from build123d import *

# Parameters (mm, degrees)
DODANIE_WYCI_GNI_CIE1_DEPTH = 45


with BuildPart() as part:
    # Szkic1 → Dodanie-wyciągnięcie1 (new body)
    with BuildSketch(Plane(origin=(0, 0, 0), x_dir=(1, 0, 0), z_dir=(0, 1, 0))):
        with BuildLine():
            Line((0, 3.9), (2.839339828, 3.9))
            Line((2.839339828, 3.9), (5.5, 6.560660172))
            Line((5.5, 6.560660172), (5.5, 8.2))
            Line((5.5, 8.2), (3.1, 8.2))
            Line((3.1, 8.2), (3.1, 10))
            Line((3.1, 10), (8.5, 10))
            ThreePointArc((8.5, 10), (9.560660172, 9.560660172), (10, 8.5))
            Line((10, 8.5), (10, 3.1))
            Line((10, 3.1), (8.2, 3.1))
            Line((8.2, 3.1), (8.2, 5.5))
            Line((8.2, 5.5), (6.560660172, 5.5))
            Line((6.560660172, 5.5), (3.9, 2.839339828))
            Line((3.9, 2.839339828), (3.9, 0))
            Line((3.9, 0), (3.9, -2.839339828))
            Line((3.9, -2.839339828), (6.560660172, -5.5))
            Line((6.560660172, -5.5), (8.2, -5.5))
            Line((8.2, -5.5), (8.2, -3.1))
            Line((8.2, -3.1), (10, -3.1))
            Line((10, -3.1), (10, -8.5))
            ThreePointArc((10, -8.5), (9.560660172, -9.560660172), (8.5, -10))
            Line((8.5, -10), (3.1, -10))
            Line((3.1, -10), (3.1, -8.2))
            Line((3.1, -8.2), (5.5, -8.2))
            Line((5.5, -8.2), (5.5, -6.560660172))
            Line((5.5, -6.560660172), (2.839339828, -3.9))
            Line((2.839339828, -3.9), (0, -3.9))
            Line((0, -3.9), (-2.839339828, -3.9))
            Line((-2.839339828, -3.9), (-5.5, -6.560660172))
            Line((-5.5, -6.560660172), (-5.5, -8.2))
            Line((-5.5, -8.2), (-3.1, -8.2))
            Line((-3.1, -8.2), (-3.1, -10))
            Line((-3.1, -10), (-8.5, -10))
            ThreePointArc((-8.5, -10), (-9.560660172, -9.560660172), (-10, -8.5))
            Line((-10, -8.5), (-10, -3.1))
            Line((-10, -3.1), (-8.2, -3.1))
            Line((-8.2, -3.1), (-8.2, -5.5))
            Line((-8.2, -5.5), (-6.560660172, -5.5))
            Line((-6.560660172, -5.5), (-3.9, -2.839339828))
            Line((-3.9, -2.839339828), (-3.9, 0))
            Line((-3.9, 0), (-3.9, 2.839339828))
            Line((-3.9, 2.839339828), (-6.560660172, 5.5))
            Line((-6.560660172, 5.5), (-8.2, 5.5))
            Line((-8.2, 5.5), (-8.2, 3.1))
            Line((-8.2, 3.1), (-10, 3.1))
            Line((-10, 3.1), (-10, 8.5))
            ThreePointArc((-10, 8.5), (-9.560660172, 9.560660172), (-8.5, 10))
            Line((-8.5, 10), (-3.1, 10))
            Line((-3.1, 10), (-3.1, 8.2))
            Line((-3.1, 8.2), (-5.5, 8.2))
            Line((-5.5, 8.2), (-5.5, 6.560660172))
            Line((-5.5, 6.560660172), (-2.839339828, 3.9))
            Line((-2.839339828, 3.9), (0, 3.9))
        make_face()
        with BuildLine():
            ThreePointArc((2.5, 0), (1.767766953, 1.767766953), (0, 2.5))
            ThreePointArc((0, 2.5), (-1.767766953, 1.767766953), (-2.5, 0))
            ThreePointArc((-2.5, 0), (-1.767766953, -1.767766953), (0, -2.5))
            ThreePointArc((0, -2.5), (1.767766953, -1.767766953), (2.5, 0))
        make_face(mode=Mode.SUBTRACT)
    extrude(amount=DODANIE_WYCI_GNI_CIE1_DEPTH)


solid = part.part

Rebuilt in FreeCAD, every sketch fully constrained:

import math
import FreeCAD as App
import Part
import Sketcher
from FreeCAD import Vector
Q = App.Units.Quantity

doc = App.newDocument("Part")
body = doc.addObject("PartDesign::Body", "Body")

sketch1 = body.newObject("Sketcher::SketchObject", "Sketch")
sketch1.AttachmentSupport = (doc.getObject("XZ_Plane"), [""])
sketch1.MapMode = "FlatFace"
sketch1.addGeometry(Part.LineSegment(Vector(5.5, -6.6, 0), Vector(2.8, -3.9, 0)), False)
sketch1.addGeometry(Part.LineSegment(Vector(2.8, -3.9, 0), Vector(-2.8, -3.9, 0)), False)
sketch1.addGeometry(Part.LineSegment(Vector(-2.8, -3.9, 0), Vector(-5.5, -6.6, 0)), False)
sketch1.addGeometry(Part.LineSegment(Vector(-5.5, -6.6, 0), Vector(-5.5, -8.2, 0)), False)
sketch1.addGeometry(Part.LineSegment(Vector(-5.5, -8.2, 0), Vector(-3.1, -8.2, 0)), False)
sketch1.addGeometry(Part.LineSegment(Vector(-3.1, -8.2, 0), Vector(-3.1, -10, 0)), False)
sketch1.addGeometry(Part.LineSegment(Vector(-3.1, -10, 0), Vector(-8.5, -10, 0)), False)
sketch1.addGeometry(Part.ArcOfCircle(Part.Circle(Vector(-8.5, -8.5, 0), Vector(0, 0, 1), 1.5), math.radians(180), math.radians(270)), False)
sketch1.addGeometry(Part.LineSegment(Vector(-10, -8.5, 0), Vector(-10, -3.1, 0)), False)
sketch1.addGeometry(Part.LineSegment(Vector(-10, -3.1, 0), Vector(-8.2, -3.1, 0)), False)
sketch1.addGeometry(Part.LineSegment(Vector(-8.2, -3.1, 0), Vector(-8.2, -5.5, 0)), False)
sketch1.addGeometry(Part.LineSegment(Vector(-8.2, -5.5, 0), Vector(-6.6, -5.5, 0)), False)
sketch1.addGeometry(Part.LineSegment(Vector(-6.6, -5.5, 0), Vector(-3.9, -2.8, 0)), False)
sketch1.addGeometry(Part.LineSegment(Vector(-3.9, -2.8, 0), Vector(-3.9, 2.8, 0)), False)
sketch1.addGeometry(Part.LineSegment(Vector(-3.9, 2.8, 0), Vector(-6.6, 5.5, 0)), False)
sketch1.addGeometry(Part.LineSegment(Vector(-6.6, 5.5, 0), Vector(-8.2, 5.5, 0)), False)
sketch1.addGeometry(Part.LineSegment(Vector(-8.2, 5.5, 0), Vector(-8.2, 3.1, 0)), False)
sketch1.addGeometry(Part.LineSegment(Vector(-8.2, 3.1, 0), Vector(-10, 3.1, 0)), False)
sketch1.addGeometry(Part.LineSegment(Vector(-10, 3.1, 0), Vector(-10, 8.5, 0)), False)
sketch1.addGeometry(Part.ArcOfCircle(Part.Circle(Vector(-8.5, 8.5, 0), Vector(0, 0, 1), 1.5), math.radians(90), math.radians(180)), False)
sketch1.addGeometry(Part.LineSegment(Vector(-8.5, 10, 0), Vector(-3.1, 10, 0)), False)
sketch1.addGeometry(Part.LineSegment(Vector(-3.1, 10, 0), Vector(-3.1, 8.2, 0)), False)
sketch1.addGeometry(Part.LineSegment(Vector(-3.1, 8.2, 0), Vector(-5.5, 8.2, 0)), False)
sketch1.addGeometry(Part.LineSegment(Vector(-5.5, 8.2, 0), Vector(-5.5, 6.6, 0)), False)
sketch1.addGeometry(Part.LineSegment(Vector(-5.5, 6.6, 0), Vector(-2.8, 3.9, 0)), False)
sketch1.addGeometry(Part.LineSegment(Vector(-2.8, 3.9, 0), Vector(2.8, 3.9, 0)), False)
sketch1.addGeometry(Part.LineSegment(Vector(2.8, 3.9, 0), Vector(5.5, 6.6, 0)), False)
sketch1.addGeometry(Part.LineSegment(Vector(5.5, 6.6, 0), Vector(5.5, 8.2, 0)), False)
sketch1.addGeometry(Part.LineSegment(Vector(5.5, 8.2, 0), Vector(3.1, 8.2, 0)), False)
sketch1.addGeometry(Part.LineSegment(Vector(3.1, 8.2, 0), Vector(3.1, 10, 0)), False)
sketch1.addGeometry(Part.LineSegment(Vector(3.1, 10, 0), Vector(8.5, 10, 0)), False)
sketch1.addGeometry(Part.ArcOfCircle(Part.Circle(Vector(8.5, 8.5, 0), Vector(0, 0, 1), 1.5), math.radians(0), math.radians(90)), False)
sketch1.addGeometry(Part.LineSegment(Vector(10, 8.5, 0), Vector(10, 3.1, 0)), False)
sketch1.addGeometry(Part.LineSegment(Vector(10, 3.1, 0), Vector(8.2, 3.1, 0)), False)
sketch1.addGeometry(Part.LineSegment(Vector(8.2, 3.1, 0), Vector(8.2, 5.5, 0)), False)
sketch1.addGeometry(Part.LineSegment(Vector(8.2, 5.5, 0), Vector(6.6, 5.5, 0)), False)
sketch1.addGeometry(Part.LineSegment(Vector(6.6, 5.5, 0), Vector(3.9, 2.8, 0)), False)
sketch1.addGeometry(Part.LineSegment(Vector(3.9, 2.8, 0), Vector(3.9, -2.8, 0)), False)
sketch1.addGeometry(Part.LineSegment(Vector(3.9, -2.8, 0), Vector(6.6, -5.5, 0)), False)
sketch1.addGeometry(Part.LineSegment(Vector(6.6, -5.5, 0), Vector(8.2, -5.5, 0)), False)
sketch1.addGeometry(Part.LineSegment(Vector(8.2, -5.5, 0), Vector(8.2, -3.1, 0)), False)
sketch1.addGeometry(Part.LineSegment(Vector(8.2, -3.1, 0), Vector(10, -3.1, 0)), False)
sketch1.addGeometry(Part.LineSegment(Vector(10, -3.1, 0), Vector(10, -8.5, 0)), False)
sketch1.addGeometry(Part.ArcOfCircle(Part.Circle(Vector(8.5, -8.5, 0), Vector(0, 0, 1), 1.5), math.radians(-90), math.radians(0)), False)
sketch1.addGeometry(Part.LineSegment(Vector(8.5, -10, 0), Vector(3.1, -10, 0)), False)
sketch1.addGeometry(Part.LineSegment(Vector(3.1, -10, 0), Vector(3.1, -8.2, 0)), False)
sketch1.addGeometry(Part.LineSegment(Vector(3.1, -8.2, 0), Vector(5.5, -8.2, 0)), False)
sketch1.addGeometry(Part.LineSegment(Vector(5.5, -8.2, 0), Vector(5.5, -6.6, 0)), False)
sketch1.addGeometry(Part.ArcOfCircle(Part.Circle(Vector(0, 0, 0), Vector(0, 0, 1), 2.5), math.radians(0), math.radians(90)), False)
sketch1.addGeometry(Part.ArcOfCircle(Part.Circle(Vector(0, 0, 0), Vector(0, 0, 1), 2.5), math.radians(90), math.radians(180)), False)
sketch1.addGeometry(Part.ArcOfCircle(Part.Circle(Vector(0, 0, 0), Vector(0, 0, 1), 2.5), math.radians(180), math.radians(270)), False)
sketch1.addGeometry(Part.ArcOfCircle(Part.Circle(Vector(0, 0, 0), Vector(0, 0, 1), 2.5), math.radians(-90), math.radians(0)), False)
sketch1.addConstraint(Sketcher.Constraint("Coincident", 0, 2, 1, 1))
sketch1.addConstraint(Sketcher.Constraint("Coincident", 1, 2, 2, 1))
sketch1.addConstraint(Sketcher.Constraint("Coincident", 2, 2, 3, 1))
sketch1.addConstraint(Sketcher.Constraint("Coincident", 3, 2, 4, 1))
sketch1.addConstraint(Sketcher.Constraint("Coincident", 4, 2, 5, 1))
sketch1.addConstraint(Sketcher.Constraint("Coincident", 5, 2, 6, 1))
sketch1.addConstraint(Sketcher.Constraint("Tangent", 6, 2, 7, 2))
sketch1.addConstraint(Sketcher.Constraint("Tangent", 7, 1, 8, 1))
sketch1.addConstraint(Sketcher.Constraint("Coincident", 8, 2, 9, 1))
sketch1.addConstraint(Sketcher.Constraint("Coincident", 9, 2, 10, 1))
sketch1.addConstraint(Sketcher.Constraint("Coincident", 10, 2, 11, 1))
sketch1.addConstraint(Sketcher.Constraint("Coincident", 11, 2, 12, 1))
sketch1.addConstraint(Sketcher.Constraint("Coincident", 12, 2, 13, 1))
sketch1.addConstraint(Sketcher.Constraint("Coincident", 13, 2, 14, 1))
sketch1.addConstraint(Sketcher.Constraint("Coincident", 14, 2, 15, 1))
sketch1.addConstraint(Sketcher.Constraint("Coincident", 15, 2, 16, 1))
sketch1.addConstraint(Sketcher.Constraint("Coincident", 16, 2, 17, 1))
sketch1.addConstraint(Sketcher.Constraint("Coincident", 17, 2, 18, 1))
sketch1.addConstraint(Sketcher.Constraint("Tangent", 18, 2, 19, 2))
sketch1.addConstraint(Sketcher.Constraint("Tangent", 19, 1, 20, 1))
sketch1.addConstraint(Sketcher.Constraint("Coincident", 20, 2, 21, 1))
sketch1.addConstraint(Sketcher.Constraint("Coincident", 21, 2, 22, 1))
sketch1.addConstraint(Sketcher.Constraint("Coincident", 22, 2, 23, 1))
sketch1.addConstraint(Sketcher.Constraint("Coincident", 23, 2, 24, 1))
sketch1.addConstraint(Sketcher.Constraint("Coincident", 24, 2, 25, 1))
sketch1.addConstraint(Sketcher.Constraint("Coincident", 25, 2, 26, 1))
sketch1.addConstraint(Sketcher.Constraint("Coincident", 26, 2, 27, 1))
sketch1.addConstraint(Sketcher.Constraint("Coincident", 27, 2, 28, 1))
sketch1.addConstraint(Sketcher.Constraint("Coincident", 28, 2, 29, 1))
sketch1.addConstraint(Sketcher.Constraint("Coincident", 29, 2, 30, 1))
sketch1.addConstraint(Sketcher.Constraint("Tangent", 30, 2, 31, 2))
sketch1.addConstraint(Sketcher.Constraint("Tangent", 31, 1, 32, 1))
sketch1.addConstraint(Sketcher.Constraint("Coincident", 32, 2, 33, 1))
sketch1.addConstraint(Sketcher.Constraint("Coincident", 33, 2, 34, 1))
sketch1.addConstraint(Sketcher.Constraint("Coincident", 34, 2, 35, 1))
sketch1.addConstraint(Sketcher.Constraint("Coincident", 35, 2, 36, 1))
sketch1.addConstraint(Sketcher.Constraint("Coincident", 36, 2, 37, 1))
sketch1.addConstraint(Sketcher.Constraint("Coincident", 37, 2, 38, 1))
sketch1.addConstraint(Sketcher.Constraint("Coincident", 38, 2, 39, 1))
sketch1.addConstraint(Sketcher.Constraint("Coincident", 39, 2, 40, 1))
sketch1.addConstraint(Sketcher.Constraint("Coincident", 40, 2, 41, 1))
sketch1.addConstraint(Sketcher.Constraint("Coincident", 41, 2, 42, 1))
sketch1.addConstraint(Sketcher.Constraint("Tangent", 42, 2, 43, 2))
sketch1.addConstraint(Sketcher.Constraint("Tangent", 43, 1, 44, 1))
sketch1.addConstraint(Sketcher.Constraint("Coincident", 44, 2, 45, 1))
sketch1.addConstraint(Sketcher.Constraint("Coincident", 45, 2, 46, 1))
sketch1.addConstraint(Sketcher.Constraint("Coincident", 46, 2, 47, 1))
sketch1.addConstraint(Sketcher.Constraint("Coincident", 47, 2, 0, 1))
sketch1.addConstraint(Sketcher.Constraint("Tangent", 48, 2, 49, 1))
sketch1.addConstraint(Sketcher.Constraint("Tangent", 49, 2, 50, 1))
sketch1.addConstraint(Sketcher.Constraint("Tangent", 50, 2, 51, 1))
sketch1.addConstraint(Sketcher.Constraint("Tangent", 51, 2, 48, 1))
sketch1.addConstraint(Sketcher.Constraint("Horizontal", 1))
sketch1.addConstraint(Sketcher.Constraint("Vertical", 3))
sketch1.addConstraint(Sketcher.Constraint("Horizontal", 4))
sketch1.addConstraint(Sketcher.Constraint("Vertical", 5))
sketch1.addConstraint(Sketcher.Constraint("Horizontal", 6))
sketch1.addConstraint(Sketcher.Constraint("Vertical", 8))
sketch1.addConstraint(Sketcher.Constraint("Horizontal", 9))
sketch1.addConstraint(Sketcher.Constraint("Vertical", 10))
sketch1.addConstraint(Sketcher.Constraint("Horizontal", 11))
sketch1.addConstraint(Sketcher.Constraint("Vertical", 13))
sketch1.addConstraint(Sketcher.Constraint("Horizontal", 15))
sketch1.addConstraint(Sketcher.Constraint("Vertical", 16))
sketch1.addConstraint(Sketcher.Constraint("Horizontal", 17))
sketch1.addConstraint(Sketcher.Constraint("Vertical", 18))
sketch1.addConstraint(Sketcher.Constraint("Horizontal", 20))
sketch1.addConstraint(Sketcher.Constraint("Vertical", 21))
sketch1.addConstraint(Sketcher.Constraint("Horizontal", 22))
sketch1.addConstraint(Sketcher.Constraint("Vertical", 23))
sketch1.addConstraint(Sketcher.Constraint("Horizontal", 25))
sketch1.addConstraint(Sketcher.Constraint("Vertical", 27))
sketch1.addConstraint(Sketcher.Constraint("Horizontal", 28))
sketch1.addConstraint(Sketcher.Constraint("Vertical", 29))
sketch1.addConstraint(Sketcher.Constraint("Horizontal", 30))
sketch1.addConstraint(Sketcher.Constraint("Vertical", 32))
sketch1.addConstraint(Sketcher.Constraint("Horizontal", 33))
sketch1.addConstraint(Sketcher.Constraint("Vertical", 34))
sketch1.addConstraint(Sketcher.Constraint("Horizontal", 35))
sketch1.addConstraint(Sketcher.Constraint("Vertical", 37))
sketch1.addConstraint(Sketcher.Constraint("Horizontal", 39))
sketch1.addConstraint(Sketcher.Constraint("Vertical", 40))
sketch1.addConstraint(Sketcher.Constraint("Horizontal", 41))
sketch1.addConstraint(Sketcher.Constraint("Vertical", 42))
sketch1.addConstraint(Sketcher.Constraint("Horizontal", 44))
sketch1.addConstraint(Sketcher.Constraint("Vertical", 45))
sketch1.addConstraint(Sketcher.Constraint("Horizontal", 46))
sketch1.addConstraint(Sketcher.Constraint("Vertical", 47))
sketch1.addConstraint(Sketcher.Constraint("Coincident", 48, 3, -1, 1))
sketch1.addConstraint(Sketcher.Constraint("Equal", 7, 19))
sketch1.addConstraint(Sketcher.Constraint("Equal", 19, 31))
sketch1.addConstraint(Sketcher.Constraint("Equal", 31, 43))
sketch1.addConstraint(Sketcher.Constraint("Equal", 48, 49))
sketch1.addConstraint(Sketcher.Constraint("Symmetric", 7, 3, 31, 3, -1, 1))
sketch1.addConstraint(Sketcher.Constraint("Symmetric", 19, 3, 43, 3, -1, 1))
sketch1.addConstraint(Sketcher.Constraint("Symmetric", 0, 2, 24, 2, -1, 1))
sketch1.addConstraint(Sketcher.Constraint("Symmetric", 2, 2, 26, 2, -1, 1))
sketch1.addConstraint(Sketcher.Constraint("Symmetric", 4, 2, 28, 2, -1, 1))
sketch1.addConstraint(Sketcher.Constraint("Symmetric", 9, 2, 33, 2, -1, 1))
sketch1.addConstraint(Sketcher.Constraint("Symmetric", 11, 2, 35, 2, -1, 1))
sketch1.addConstraint(Sketcher.Constraint("Symmetric", 12, 2, 36, 2, -1, 1))
sketch1.addConstraint(Sketcher.Constraint("Symmetric", 14, 2, 38, 2, -1, 1))
sketch1.addConstraint(Sketcher.Constraint("Symmetric", 16, 2, 40, 2, -1, 1))
sketch1.addConstraint(Sketcher.Constraint("Symmetric", 21, 2, 45, 2, -1, 1))
sketch1.addConstraint(Sketcher.Constraint("Symmetric", 23, 2, 47, 2, -1, 1))
sketch1.addConstraint(Sketcher.Constraint("Symmetric", 19, 3, 31, 3, -2))
sketch1.addConstraint(Sketcher.Constraint("Symmetric", 23, 2, 26, 2, -2))
sketch1.addConstraint(Sketcher.Constraint("Symmetric", 21, 2, 28, 2, -2))
sketch1.addConstraint(Sketcher.Constraint("Symmetric", 16, 2, 33, 2, -2))
sketch1.addConstraint(Sketcher.Constraint("Symmetric", 14, 2, 35, 2, -2))
sketch1.addConstraint(Sketcher.Constraint("PointOnObject", 48, 2, -2))
sketch1.addConstraint(Sketcher.Constraint("PointOnObject", 49, 2, -1))
sketch1.addConstraint(Sketcher.Constraint("PointOnObject", 50, 2, -2))
sketch1.addConstraint(Sketcher.Constraint("PointOnObject", 51, 2, -1))
sketch1.addConstraint(Sketcher.Constraint("Perpendicular", 0, 2))
sketch1.addConstraint(Sketcher.Constraint("Parallel", 2, 12))
sketch1.addConstraint(Sketcher.Constraint("Perpendicular", 12, 14))
sketch1.addConstraint(Sketcher.Constraint("Perpendicular", 24, 26))
sketch1.addConstraint(Sketcher.Constraint("Perpendicular", 36, 38))
sketch1.addConstraint(Sketcher.Constraint("Horizontal", 13, 2, 36, 2))
sketch1.addConstraint(Sketcher.Constraint("Equal", 39, 3))
sketch1.addConstraint(Sketcher.Constraint("Equal", 41, 5))
sketch1.addConstraint(Sketcher.Constraint("Equal", 44, 8))
sketch1.addConstraint(Sketcher.Constraint("Equal", 46, 10))
sketch1.addConstraint(Sketcher.Constraint("Equal", 25, 13))
sketch1.addConstraint(Sketcher.Constraint("Equal", 2, 12))
sketch1.addConstraint(Sketcher.Constraint("Radius", 7, Q("1.5 mm")))
sketch1.addConstraint(Sketcher.Constraint("Radius", 48, Q("2.5 mm")))
sketch1.addConstraint(Sketcher.Constraint("DistanceX", 4, 1, 4, 2, Q("2.4 mm")))
sketch1.addConstraint(Sketcher.Constraint("DistanceX", 6, 2, 6, 1, Q("5.4 mm")))
sketch1.addConstraint(Sketcher.Constraint("DistanceX", 9, 1, 9, 2, Q("1.8 mm")))
sketch1.addConstraint(Sketcher.Constraint("DistanceY", 5, 2, -1, 1, Q("10 mm")))
sketch1.addConstraint(Sketcher.Constraint("DistanceY", 0, 2, -1, 1, Q("3.9 mm")))
sketch1.addConstraint(Sketcher.Constraint("DistanceX", 1, 2, 1, 1, Q("5.67868 mm")))
pad1 = body.newObject("PartDesign::Pad", "Pad")
pad1.Profile = sketch1
pad1.Length = 45
pad1.Reversed = True

doc.recompute()
